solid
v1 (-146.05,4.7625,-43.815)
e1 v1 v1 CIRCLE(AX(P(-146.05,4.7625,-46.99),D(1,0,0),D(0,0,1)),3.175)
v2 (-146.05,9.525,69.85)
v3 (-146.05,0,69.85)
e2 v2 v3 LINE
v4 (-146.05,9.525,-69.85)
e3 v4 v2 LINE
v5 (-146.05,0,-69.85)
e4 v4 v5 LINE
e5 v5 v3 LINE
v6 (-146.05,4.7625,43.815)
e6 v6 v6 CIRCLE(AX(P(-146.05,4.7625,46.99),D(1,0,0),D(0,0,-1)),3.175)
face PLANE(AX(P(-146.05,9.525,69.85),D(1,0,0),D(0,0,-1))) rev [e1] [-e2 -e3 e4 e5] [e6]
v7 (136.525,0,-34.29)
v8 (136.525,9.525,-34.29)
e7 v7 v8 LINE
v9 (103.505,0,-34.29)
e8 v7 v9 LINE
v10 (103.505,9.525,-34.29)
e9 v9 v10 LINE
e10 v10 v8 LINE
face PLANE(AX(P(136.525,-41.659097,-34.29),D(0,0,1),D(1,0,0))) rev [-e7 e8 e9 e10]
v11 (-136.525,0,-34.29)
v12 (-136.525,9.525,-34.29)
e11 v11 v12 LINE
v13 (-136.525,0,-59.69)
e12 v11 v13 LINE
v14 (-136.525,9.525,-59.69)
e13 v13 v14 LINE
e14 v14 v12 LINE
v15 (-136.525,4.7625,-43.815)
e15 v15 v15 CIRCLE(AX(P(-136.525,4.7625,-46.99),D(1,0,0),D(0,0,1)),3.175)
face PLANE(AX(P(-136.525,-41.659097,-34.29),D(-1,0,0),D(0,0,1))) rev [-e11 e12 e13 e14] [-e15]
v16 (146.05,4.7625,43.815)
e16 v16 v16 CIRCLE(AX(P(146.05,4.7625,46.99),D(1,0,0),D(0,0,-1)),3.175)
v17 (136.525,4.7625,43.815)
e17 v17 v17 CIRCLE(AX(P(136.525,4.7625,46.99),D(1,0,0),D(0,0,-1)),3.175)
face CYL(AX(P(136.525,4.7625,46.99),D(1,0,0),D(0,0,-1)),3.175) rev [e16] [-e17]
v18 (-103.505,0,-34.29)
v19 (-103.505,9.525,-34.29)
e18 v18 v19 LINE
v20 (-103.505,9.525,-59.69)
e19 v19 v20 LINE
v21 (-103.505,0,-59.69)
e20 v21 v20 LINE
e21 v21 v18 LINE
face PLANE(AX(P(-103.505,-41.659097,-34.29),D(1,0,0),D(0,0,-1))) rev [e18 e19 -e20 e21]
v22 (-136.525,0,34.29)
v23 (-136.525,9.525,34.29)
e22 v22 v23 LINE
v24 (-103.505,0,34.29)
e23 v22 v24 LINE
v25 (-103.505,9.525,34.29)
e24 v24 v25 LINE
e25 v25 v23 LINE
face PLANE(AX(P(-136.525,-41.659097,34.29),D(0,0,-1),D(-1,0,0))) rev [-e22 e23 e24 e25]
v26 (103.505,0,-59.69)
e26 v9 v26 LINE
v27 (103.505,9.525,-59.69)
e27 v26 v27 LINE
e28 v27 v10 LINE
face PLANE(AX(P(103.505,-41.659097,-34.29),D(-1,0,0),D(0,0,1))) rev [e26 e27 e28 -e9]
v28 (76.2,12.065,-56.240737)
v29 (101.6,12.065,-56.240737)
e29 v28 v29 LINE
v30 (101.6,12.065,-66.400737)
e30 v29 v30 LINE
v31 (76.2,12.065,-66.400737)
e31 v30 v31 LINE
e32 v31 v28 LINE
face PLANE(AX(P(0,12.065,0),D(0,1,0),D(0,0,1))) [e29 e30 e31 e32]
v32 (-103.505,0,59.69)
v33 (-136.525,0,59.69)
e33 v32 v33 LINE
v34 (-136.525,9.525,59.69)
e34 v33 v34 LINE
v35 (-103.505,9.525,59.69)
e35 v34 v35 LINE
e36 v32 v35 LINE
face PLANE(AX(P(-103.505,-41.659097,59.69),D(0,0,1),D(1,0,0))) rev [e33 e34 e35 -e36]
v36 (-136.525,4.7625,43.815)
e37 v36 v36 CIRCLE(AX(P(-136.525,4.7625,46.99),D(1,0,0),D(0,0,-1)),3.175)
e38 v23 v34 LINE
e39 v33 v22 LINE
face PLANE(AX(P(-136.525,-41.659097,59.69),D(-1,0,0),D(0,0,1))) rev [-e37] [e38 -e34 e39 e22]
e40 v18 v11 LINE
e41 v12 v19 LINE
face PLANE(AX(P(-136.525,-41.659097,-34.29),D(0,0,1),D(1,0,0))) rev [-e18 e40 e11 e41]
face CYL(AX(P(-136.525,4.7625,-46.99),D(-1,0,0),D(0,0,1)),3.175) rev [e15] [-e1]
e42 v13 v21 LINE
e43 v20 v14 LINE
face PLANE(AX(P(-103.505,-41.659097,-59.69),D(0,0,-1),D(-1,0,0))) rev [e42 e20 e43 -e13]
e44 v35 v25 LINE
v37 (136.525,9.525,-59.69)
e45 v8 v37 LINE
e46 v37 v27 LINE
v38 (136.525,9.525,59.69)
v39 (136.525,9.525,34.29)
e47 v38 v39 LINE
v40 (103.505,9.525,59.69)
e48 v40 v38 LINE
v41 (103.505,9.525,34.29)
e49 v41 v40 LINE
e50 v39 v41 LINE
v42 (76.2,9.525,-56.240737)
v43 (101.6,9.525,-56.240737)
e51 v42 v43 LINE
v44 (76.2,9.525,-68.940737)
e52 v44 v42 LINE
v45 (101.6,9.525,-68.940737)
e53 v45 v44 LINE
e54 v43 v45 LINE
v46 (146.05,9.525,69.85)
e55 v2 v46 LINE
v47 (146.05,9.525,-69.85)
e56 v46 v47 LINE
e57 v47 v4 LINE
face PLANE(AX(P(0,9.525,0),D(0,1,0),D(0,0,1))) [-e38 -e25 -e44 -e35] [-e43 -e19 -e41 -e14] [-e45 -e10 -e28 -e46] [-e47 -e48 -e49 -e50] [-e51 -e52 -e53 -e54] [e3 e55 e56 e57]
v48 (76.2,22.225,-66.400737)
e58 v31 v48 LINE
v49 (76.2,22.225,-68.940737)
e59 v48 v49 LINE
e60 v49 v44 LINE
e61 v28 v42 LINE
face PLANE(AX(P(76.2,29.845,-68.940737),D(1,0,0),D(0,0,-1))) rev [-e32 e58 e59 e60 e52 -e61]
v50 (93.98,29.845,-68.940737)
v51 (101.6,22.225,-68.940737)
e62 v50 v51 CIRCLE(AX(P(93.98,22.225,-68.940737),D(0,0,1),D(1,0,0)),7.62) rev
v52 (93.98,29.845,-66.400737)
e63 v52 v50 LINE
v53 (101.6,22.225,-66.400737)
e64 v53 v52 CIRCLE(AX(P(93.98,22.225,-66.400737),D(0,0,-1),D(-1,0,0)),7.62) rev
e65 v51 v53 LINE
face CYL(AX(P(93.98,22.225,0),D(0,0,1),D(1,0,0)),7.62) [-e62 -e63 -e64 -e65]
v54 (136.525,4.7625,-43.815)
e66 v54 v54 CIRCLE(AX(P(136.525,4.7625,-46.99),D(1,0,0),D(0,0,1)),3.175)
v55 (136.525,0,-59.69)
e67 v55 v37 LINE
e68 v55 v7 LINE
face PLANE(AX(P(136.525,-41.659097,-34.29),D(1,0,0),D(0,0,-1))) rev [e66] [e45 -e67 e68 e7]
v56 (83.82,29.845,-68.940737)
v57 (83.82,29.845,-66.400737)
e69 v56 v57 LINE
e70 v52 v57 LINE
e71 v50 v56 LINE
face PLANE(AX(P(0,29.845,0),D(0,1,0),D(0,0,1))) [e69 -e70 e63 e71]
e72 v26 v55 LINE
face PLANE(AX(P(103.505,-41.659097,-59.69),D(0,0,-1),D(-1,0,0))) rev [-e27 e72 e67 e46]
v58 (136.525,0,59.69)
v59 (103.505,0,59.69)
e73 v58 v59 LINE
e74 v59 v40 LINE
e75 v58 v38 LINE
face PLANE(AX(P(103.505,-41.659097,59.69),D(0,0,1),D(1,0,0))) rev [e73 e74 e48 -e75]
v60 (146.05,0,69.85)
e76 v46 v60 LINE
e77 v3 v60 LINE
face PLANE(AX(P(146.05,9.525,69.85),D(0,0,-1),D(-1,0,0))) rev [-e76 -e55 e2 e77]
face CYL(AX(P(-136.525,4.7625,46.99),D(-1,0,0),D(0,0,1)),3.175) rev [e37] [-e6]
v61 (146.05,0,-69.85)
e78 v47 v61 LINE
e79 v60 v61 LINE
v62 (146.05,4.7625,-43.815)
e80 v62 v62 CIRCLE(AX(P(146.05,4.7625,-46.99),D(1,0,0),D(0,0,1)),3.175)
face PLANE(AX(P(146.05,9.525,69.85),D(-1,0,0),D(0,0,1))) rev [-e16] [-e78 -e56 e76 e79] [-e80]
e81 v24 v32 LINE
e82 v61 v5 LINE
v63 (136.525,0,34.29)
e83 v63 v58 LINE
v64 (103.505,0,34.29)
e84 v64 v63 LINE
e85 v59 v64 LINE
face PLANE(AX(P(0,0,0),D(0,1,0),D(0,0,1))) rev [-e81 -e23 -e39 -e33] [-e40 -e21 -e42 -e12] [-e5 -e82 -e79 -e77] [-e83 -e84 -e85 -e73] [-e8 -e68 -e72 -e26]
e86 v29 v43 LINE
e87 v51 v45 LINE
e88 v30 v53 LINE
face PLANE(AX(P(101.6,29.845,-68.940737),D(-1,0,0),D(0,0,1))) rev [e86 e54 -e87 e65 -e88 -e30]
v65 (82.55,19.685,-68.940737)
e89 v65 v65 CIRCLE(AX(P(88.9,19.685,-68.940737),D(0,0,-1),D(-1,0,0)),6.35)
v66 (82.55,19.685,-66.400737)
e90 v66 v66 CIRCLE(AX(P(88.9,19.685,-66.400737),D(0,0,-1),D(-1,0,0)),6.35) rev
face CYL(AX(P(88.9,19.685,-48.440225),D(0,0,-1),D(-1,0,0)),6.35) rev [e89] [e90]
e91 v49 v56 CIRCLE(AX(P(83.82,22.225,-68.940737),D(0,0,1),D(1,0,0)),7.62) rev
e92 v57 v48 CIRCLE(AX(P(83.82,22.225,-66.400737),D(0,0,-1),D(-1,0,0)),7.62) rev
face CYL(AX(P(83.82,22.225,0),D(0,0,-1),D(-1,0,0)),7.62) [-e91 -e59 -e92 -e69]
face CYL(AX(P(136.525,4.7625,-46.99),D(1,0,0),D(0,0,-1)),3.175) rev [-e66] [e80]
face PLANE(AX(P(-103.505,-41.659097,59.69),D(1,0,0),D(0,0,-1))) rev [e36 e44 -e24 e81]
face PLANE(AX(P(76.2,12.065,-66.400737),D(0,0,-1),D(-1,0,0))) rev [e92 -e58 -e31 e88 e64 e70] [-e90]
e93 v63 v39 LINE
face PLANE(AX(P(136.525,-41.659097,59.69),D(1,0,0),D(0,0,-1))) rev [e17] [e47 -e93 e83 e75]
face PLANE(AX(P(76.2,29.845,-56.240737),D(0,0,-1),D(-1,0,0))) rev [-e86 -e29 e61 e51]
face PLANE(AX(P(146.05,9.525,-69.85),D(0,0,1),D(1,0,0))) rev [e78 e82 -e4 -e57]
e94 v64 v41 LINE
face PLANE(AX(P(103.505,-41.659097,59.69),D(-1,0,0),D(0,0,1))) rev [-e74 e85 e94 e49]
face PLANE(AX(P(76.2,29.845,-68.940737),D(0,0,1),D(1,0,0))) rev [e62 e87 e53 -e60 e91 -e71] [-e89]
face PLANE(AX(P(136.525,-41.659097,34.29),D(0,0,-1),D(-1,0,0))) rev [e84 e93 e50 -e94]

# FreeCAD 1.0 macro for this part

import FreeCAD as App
import Part
import Sketcher
from FreeCAD import Vector
Q = App.Units.Quantity


def edges_at(feature, points):
    """Names of the edges that pass closest to the given points."""
    edges = feature.Shape.Edges
    near = lambda p: min(range(len(edges)), key=lambda i: edges[i].distToShape(Part.Vertex(*p))[0])
    return sorted({f"Edge{near(p) + 1}" for p in points})


def add_polygon(sketch, points):
    """Adds a closed chain of lines whose ends are joined by coincident constraints."""
    first, n = sketch.GeometryCount, len(points)
    for a, b in zip(points, points[1:] + points[:1]):
        sketch.addGeometry(Part.LineSegment(App.Vector(*a, 0), App.Vector(*b, 0)), False)
    for i in range(n):
        sketch.addConstraint(Sketcher.Constraint("Coincident", first + i, 2, first + (i + 1) % n, 1))

doc = App.newDocument("Part")
body = doc.addObject("PartDesign::Body", "Body")

# Sketch on XZ plane
sketch1 = body.newObject("Sketcher::SketchObject", "Sketch")
sketch1.AttachmentSupport = (doc.getObject("XZ_Plane"), [""])
sketch1.MapMode = "FlatFace"
add_polygon(sketch1, [(-146.05, -69.85), (-146.05, 69.85), (146.05, 69.85), (146.05, -69.85)])  # lines 0-3
sketch1.addConstraint([
    Sketcher.Constraint("Vertical", 0),
    Sketcher.Constraint("Horizontal", 1),
    Sketcher.Constraint("Vertical", 2),
    Sketcher.Constraint("Horizontal", 3),
    Sketcher.Constraint("Symmetric", 0, 2, 2, 2, -1, 1),
    Sketcher.Constraint("DistanceX", 1, 1, 1, 2, Q("11.5 in")),
    Sketcher.Constraint("DistanceY", 0, 1, 0, 2, Q("5.5 in")),
])
pad1 = body.newObject("PartDesign::Pad", "Pad")
pad1.Profile = sketch1
pad1.Length = Q("0.375 in")
pad1.Reversed = True

# Sketch on XZ plane
sketch2 = body.newObject("Sketcher::SketchObject", "Sketch001")
sketch2.AttachmentSupport = (doc.getObject("XZ_Plane"), [""])
sketch2.MapMode = "FlatFace"
sketch2.AttachmentOffset = App.Placement(Vector(0, 0, -0.375 * 25.4), App.Rotation())
add_polygon(sketch2, [(-136.525, -59.69), (-136.525, -34.29), (-103.505, -34.29), (-103.505, -59.69)])  # lines 0-3
add_polygon(sketch2, [(-136.525, 34.29), (-136.525, 59.69), (-103.505, 59.69), (-103.505, 34.29)])  # lines 4-7
add_polygon(sketch2, [(103.505, -59.69), (103.505, -34.29), (136.525, -34.29), (136.525, -59.69)])  # lines 8-11
add_polygon(sketch2, [(103.505, 34.29), (103.505, 59.69), (136.525, 59.69), (136.525, 34.29)])  # lines 12-15
sketch2.addConstraint([
    Sketcher.Constraint("Vertical", 0),
    Sketcher.Constraint("Horizontal", 1),
    Sketcher.Constraint("Vertical", 2),
    Sketcher.Constraint("Horizontal", 3),
    Sketcher.Constraint("Vertical", 4),
    Sketcher.Constraint("Horizontal", 5),
    Sketcher.Constraint("Vertical", 6),
    Sketcher.Constraint("Horizontal", 7),
    Sketcher.Constraint("Vertical", 8),
    Sketcher.Constraint("Horizontal", 9),
    Sketcher.Constraint("Vertical", 10),
    Sketcher.Constraint("Horizontal", 11),
    Sketcher.Constraint("Vertical", 12),
    Sketcher.Constraint("Horizontal", 13),
    Sketcher.Constraint("Vertical", 14),
    Sketcher.Constraint("Horizontal", 15),
    Sketcher.Constraint("Symmetric", 6, 2, 8, 2, -1, 1),
    Sketcher.Constraint("Symmetric", 4, 2, 10, 2, -1, 1),
    Sketcher.Constraint("Symmetric", 2, 2, 12, 2, -1, 1),
    Sketcher.Constraint("Symmetric", 0, 2, 14, 2, -1, 1),
    Sketcher.Constraint("Symmetric", 1, 2, 8, 2, -2),
    Sketcher.Constraint("Symmetric", 3, 2, 10, 2, -2),
    Sketcher.Constraint("DistanceY", 0, 1, 0, 2, Q("1 in")),
    Sketcher.Constraint("DistanceX", 1, 1, 1, 2, Q("1.3 in")),
    Sketcher.Constraint("DistanceY", 0, 2, 4, 2, Q("3.7 in")),
    Sketcher.Constraint("DistanceX", 1, 2, 8, 2, Q("8.15 in")),
])
pocket1 = body.newObject("PartDesign::Pocket", "Pocket")
pocket1.Profile = sketch2
pocket1.Length = Q("0.375 in")
pocket1.Reversed = True

# Sketch on YZ plane
sketch3 = body.newObject("Sketcher::SketchObject", "Sketch002")
sketch3.AttachmentSupport = (doc.getObject("YZ_Plane"), [""])
sketch3.MapMode = "FlatFace"
sketch3.AttachmentOffset = App.Placement(Vector(0, 0, 5.75 * 25.4), App.Rotation())
sketch3.addGeometry([
    Part.Circle(Vector(4.7625, 46.99, 0), Vector(0, 0, 1), 3.175),
    Part.Circle(Vector(4.7625, -46.99, 0), Vector(0, 0, 1), 3.175),
], False)
sketch3.addConstraint([
    Sketcher.Constraint("Equal", 0, 1),
    Sketcher.Constraint("Symmetric", 0, 3, 1, 3, -1),
    Sketcher.Constraint("Diameter", 0, Q("0.25 in")),
    Sketcher.Constraint("DistanceY", 1, 3, 0, 3, Q("3.7 in")),
    Sketcher.Constraint("DistanceX", -1, 1, 0, 3, Q("0.1875 in")),
])
pocket2 = body.newObject("PartDesign::Pocket", "Pocket001")
pocket2.Profile = sketch3
pocket2.Length = Q("0.375 in")
doc.recompute()

mirrored = body.newObject("PartDesign::Mirrored", "Mirrored")
mirrored.Originals = [pocket2]
mirrored.MirrorPlane = (doc.getObject("YZ_Plane"), [""])
body.Tip = mirrored

# Sketch on XZ plane
sketch4 = body.newObject("Sketcher::SketchObject", "Sketch003")
sketch4.AttachmentSupport = (doc.getObject("XZ_Plane"), [""])
sketch4.MapMode = "FlatFace"
sketch4.AttachmentOffset = App.Placement(Vector(0, 0, -0.375 * 25.4), App.Rotation())
add_polygon(sketch4, [(76.2, -68.940737), (76.2, -56.240737), (101.6, -56.240737), (101.6, -68.940737)])  # lines 0-3
sketch4.addConstraint([
    Sketcher.Constraint("Vertical", 0),
    Sketcher.Constraint("Horizontal", 1),
    Sketcher.Constraint("Vertical", 2),
    Sketcher.Constraint("Horizontal", 3),
    Sketcher.Constraint("DistanceX", 1, 1, 1, 2, Q("1 in")),
    Sketcher.Constraint("DistanceY", 0, 1, 0, 2, Q("0.5 in")),
    Sketcher.Constraint("DistanceX", -1, 1, 0, 2, Q("3 in")),
    Sketcher.Constraint("DistanceY", 0, 2, -1, 1, 56.240737),
])
pad2 = body.newObject("PartDesign::Pad", "Pad001")
pad2.Profile = sketch4
pad2.Length = Q("0.8 in")
pad2.Reversed = True

# Sketch on XZ plane
sketch5 = body.newObject("Sketcher::SketchObject", "Sketch004")
sketch5.AttachmentSupport = (doc.getObject("XZ_Plane"), [""])
sketch5.MapMode = "FlatFace"
sketch5.AttachmentOffset = App.Placement(Vector(0, 0, -1.175 * 25.4), App.Rotation())
add_polygon(sketch5, [(76.2, -66.400737), (76.2, -56.240737), (101.6, -56.240737), (101.6, -66.400737)])  # lines 0-3
sketch5.addConstraint([
    Sketcher.Constraint("Vertical", 0),
    Sketcher.Constraint("Horizontal", 1),
    Sketcher.Constraint("Vertical", 2),
    Sketcher.Constraint("Horizontal", 3),
    Sketcher.Constraint("DistanceX", 1, 1, 1, 2, Q("1 in")),
    Sketcher.Constraint("DistanceY", 0, 1, 0, 2, Q("0.4 in")),
    Sketcher.Constraint("DistanceX", -1, 1, 0, 2, Q("3 in")),
    Sketcher.Constraint("DistanceY", 0, 2, -1, 1, 56.240737),
])
pocket3 = body.newObject("PartDesign::Pocket", "Pocket002")
pocket3.Profile = sketch5
pocket3.Length = Q("0.7 in")
pocket3.Reversed = True
doc.recompute()

fillet = body.newObject("PartDesign::Fillet", "Fillet")
fillet.Base = (pocket3, edges_at(pocket3, [(101.6, 29.845, -67.671), (76.2, 29.845, -67.671)]))
fillet.Radius = Q("0.3 in")

# Sketch on XY plane
sketch6 = body.newObject("Sketcher::SketchObject", "Sketch005")
sketch6.AttachmentSupport = (doc.getObject("XY_Plane"), [""])
sketch6.MapMode = "FlatFace"
sketch6.AttachmentOffset = App.Placement(Vector(0, 0, -68.940737), App.Rotation())
sketch6.addGeometry(Part.Circle(Vector(88.9, 19.685, 0), Vector(0, 0, 1), 6.35), False)
sketch6.addConstraint([
    Sketcher.Constraint("Diameter", 0, Q("0.5 in")),
    Sketcher.Constraint("DistanceX", -1, 1, 0, 3, Q("3.5 in")),
    Sketcher.Constraint("DistanceY", -1, 1, 0, 3, Q("0.775 in")),
])
pocket4 = body.newObject("PartDesign::Pocket", "Pocket003")
pocket4.Profile = sketch6
pocket4.Length = Q("0.1 in")
pocket4.Reversed = True

doc.recompute()
